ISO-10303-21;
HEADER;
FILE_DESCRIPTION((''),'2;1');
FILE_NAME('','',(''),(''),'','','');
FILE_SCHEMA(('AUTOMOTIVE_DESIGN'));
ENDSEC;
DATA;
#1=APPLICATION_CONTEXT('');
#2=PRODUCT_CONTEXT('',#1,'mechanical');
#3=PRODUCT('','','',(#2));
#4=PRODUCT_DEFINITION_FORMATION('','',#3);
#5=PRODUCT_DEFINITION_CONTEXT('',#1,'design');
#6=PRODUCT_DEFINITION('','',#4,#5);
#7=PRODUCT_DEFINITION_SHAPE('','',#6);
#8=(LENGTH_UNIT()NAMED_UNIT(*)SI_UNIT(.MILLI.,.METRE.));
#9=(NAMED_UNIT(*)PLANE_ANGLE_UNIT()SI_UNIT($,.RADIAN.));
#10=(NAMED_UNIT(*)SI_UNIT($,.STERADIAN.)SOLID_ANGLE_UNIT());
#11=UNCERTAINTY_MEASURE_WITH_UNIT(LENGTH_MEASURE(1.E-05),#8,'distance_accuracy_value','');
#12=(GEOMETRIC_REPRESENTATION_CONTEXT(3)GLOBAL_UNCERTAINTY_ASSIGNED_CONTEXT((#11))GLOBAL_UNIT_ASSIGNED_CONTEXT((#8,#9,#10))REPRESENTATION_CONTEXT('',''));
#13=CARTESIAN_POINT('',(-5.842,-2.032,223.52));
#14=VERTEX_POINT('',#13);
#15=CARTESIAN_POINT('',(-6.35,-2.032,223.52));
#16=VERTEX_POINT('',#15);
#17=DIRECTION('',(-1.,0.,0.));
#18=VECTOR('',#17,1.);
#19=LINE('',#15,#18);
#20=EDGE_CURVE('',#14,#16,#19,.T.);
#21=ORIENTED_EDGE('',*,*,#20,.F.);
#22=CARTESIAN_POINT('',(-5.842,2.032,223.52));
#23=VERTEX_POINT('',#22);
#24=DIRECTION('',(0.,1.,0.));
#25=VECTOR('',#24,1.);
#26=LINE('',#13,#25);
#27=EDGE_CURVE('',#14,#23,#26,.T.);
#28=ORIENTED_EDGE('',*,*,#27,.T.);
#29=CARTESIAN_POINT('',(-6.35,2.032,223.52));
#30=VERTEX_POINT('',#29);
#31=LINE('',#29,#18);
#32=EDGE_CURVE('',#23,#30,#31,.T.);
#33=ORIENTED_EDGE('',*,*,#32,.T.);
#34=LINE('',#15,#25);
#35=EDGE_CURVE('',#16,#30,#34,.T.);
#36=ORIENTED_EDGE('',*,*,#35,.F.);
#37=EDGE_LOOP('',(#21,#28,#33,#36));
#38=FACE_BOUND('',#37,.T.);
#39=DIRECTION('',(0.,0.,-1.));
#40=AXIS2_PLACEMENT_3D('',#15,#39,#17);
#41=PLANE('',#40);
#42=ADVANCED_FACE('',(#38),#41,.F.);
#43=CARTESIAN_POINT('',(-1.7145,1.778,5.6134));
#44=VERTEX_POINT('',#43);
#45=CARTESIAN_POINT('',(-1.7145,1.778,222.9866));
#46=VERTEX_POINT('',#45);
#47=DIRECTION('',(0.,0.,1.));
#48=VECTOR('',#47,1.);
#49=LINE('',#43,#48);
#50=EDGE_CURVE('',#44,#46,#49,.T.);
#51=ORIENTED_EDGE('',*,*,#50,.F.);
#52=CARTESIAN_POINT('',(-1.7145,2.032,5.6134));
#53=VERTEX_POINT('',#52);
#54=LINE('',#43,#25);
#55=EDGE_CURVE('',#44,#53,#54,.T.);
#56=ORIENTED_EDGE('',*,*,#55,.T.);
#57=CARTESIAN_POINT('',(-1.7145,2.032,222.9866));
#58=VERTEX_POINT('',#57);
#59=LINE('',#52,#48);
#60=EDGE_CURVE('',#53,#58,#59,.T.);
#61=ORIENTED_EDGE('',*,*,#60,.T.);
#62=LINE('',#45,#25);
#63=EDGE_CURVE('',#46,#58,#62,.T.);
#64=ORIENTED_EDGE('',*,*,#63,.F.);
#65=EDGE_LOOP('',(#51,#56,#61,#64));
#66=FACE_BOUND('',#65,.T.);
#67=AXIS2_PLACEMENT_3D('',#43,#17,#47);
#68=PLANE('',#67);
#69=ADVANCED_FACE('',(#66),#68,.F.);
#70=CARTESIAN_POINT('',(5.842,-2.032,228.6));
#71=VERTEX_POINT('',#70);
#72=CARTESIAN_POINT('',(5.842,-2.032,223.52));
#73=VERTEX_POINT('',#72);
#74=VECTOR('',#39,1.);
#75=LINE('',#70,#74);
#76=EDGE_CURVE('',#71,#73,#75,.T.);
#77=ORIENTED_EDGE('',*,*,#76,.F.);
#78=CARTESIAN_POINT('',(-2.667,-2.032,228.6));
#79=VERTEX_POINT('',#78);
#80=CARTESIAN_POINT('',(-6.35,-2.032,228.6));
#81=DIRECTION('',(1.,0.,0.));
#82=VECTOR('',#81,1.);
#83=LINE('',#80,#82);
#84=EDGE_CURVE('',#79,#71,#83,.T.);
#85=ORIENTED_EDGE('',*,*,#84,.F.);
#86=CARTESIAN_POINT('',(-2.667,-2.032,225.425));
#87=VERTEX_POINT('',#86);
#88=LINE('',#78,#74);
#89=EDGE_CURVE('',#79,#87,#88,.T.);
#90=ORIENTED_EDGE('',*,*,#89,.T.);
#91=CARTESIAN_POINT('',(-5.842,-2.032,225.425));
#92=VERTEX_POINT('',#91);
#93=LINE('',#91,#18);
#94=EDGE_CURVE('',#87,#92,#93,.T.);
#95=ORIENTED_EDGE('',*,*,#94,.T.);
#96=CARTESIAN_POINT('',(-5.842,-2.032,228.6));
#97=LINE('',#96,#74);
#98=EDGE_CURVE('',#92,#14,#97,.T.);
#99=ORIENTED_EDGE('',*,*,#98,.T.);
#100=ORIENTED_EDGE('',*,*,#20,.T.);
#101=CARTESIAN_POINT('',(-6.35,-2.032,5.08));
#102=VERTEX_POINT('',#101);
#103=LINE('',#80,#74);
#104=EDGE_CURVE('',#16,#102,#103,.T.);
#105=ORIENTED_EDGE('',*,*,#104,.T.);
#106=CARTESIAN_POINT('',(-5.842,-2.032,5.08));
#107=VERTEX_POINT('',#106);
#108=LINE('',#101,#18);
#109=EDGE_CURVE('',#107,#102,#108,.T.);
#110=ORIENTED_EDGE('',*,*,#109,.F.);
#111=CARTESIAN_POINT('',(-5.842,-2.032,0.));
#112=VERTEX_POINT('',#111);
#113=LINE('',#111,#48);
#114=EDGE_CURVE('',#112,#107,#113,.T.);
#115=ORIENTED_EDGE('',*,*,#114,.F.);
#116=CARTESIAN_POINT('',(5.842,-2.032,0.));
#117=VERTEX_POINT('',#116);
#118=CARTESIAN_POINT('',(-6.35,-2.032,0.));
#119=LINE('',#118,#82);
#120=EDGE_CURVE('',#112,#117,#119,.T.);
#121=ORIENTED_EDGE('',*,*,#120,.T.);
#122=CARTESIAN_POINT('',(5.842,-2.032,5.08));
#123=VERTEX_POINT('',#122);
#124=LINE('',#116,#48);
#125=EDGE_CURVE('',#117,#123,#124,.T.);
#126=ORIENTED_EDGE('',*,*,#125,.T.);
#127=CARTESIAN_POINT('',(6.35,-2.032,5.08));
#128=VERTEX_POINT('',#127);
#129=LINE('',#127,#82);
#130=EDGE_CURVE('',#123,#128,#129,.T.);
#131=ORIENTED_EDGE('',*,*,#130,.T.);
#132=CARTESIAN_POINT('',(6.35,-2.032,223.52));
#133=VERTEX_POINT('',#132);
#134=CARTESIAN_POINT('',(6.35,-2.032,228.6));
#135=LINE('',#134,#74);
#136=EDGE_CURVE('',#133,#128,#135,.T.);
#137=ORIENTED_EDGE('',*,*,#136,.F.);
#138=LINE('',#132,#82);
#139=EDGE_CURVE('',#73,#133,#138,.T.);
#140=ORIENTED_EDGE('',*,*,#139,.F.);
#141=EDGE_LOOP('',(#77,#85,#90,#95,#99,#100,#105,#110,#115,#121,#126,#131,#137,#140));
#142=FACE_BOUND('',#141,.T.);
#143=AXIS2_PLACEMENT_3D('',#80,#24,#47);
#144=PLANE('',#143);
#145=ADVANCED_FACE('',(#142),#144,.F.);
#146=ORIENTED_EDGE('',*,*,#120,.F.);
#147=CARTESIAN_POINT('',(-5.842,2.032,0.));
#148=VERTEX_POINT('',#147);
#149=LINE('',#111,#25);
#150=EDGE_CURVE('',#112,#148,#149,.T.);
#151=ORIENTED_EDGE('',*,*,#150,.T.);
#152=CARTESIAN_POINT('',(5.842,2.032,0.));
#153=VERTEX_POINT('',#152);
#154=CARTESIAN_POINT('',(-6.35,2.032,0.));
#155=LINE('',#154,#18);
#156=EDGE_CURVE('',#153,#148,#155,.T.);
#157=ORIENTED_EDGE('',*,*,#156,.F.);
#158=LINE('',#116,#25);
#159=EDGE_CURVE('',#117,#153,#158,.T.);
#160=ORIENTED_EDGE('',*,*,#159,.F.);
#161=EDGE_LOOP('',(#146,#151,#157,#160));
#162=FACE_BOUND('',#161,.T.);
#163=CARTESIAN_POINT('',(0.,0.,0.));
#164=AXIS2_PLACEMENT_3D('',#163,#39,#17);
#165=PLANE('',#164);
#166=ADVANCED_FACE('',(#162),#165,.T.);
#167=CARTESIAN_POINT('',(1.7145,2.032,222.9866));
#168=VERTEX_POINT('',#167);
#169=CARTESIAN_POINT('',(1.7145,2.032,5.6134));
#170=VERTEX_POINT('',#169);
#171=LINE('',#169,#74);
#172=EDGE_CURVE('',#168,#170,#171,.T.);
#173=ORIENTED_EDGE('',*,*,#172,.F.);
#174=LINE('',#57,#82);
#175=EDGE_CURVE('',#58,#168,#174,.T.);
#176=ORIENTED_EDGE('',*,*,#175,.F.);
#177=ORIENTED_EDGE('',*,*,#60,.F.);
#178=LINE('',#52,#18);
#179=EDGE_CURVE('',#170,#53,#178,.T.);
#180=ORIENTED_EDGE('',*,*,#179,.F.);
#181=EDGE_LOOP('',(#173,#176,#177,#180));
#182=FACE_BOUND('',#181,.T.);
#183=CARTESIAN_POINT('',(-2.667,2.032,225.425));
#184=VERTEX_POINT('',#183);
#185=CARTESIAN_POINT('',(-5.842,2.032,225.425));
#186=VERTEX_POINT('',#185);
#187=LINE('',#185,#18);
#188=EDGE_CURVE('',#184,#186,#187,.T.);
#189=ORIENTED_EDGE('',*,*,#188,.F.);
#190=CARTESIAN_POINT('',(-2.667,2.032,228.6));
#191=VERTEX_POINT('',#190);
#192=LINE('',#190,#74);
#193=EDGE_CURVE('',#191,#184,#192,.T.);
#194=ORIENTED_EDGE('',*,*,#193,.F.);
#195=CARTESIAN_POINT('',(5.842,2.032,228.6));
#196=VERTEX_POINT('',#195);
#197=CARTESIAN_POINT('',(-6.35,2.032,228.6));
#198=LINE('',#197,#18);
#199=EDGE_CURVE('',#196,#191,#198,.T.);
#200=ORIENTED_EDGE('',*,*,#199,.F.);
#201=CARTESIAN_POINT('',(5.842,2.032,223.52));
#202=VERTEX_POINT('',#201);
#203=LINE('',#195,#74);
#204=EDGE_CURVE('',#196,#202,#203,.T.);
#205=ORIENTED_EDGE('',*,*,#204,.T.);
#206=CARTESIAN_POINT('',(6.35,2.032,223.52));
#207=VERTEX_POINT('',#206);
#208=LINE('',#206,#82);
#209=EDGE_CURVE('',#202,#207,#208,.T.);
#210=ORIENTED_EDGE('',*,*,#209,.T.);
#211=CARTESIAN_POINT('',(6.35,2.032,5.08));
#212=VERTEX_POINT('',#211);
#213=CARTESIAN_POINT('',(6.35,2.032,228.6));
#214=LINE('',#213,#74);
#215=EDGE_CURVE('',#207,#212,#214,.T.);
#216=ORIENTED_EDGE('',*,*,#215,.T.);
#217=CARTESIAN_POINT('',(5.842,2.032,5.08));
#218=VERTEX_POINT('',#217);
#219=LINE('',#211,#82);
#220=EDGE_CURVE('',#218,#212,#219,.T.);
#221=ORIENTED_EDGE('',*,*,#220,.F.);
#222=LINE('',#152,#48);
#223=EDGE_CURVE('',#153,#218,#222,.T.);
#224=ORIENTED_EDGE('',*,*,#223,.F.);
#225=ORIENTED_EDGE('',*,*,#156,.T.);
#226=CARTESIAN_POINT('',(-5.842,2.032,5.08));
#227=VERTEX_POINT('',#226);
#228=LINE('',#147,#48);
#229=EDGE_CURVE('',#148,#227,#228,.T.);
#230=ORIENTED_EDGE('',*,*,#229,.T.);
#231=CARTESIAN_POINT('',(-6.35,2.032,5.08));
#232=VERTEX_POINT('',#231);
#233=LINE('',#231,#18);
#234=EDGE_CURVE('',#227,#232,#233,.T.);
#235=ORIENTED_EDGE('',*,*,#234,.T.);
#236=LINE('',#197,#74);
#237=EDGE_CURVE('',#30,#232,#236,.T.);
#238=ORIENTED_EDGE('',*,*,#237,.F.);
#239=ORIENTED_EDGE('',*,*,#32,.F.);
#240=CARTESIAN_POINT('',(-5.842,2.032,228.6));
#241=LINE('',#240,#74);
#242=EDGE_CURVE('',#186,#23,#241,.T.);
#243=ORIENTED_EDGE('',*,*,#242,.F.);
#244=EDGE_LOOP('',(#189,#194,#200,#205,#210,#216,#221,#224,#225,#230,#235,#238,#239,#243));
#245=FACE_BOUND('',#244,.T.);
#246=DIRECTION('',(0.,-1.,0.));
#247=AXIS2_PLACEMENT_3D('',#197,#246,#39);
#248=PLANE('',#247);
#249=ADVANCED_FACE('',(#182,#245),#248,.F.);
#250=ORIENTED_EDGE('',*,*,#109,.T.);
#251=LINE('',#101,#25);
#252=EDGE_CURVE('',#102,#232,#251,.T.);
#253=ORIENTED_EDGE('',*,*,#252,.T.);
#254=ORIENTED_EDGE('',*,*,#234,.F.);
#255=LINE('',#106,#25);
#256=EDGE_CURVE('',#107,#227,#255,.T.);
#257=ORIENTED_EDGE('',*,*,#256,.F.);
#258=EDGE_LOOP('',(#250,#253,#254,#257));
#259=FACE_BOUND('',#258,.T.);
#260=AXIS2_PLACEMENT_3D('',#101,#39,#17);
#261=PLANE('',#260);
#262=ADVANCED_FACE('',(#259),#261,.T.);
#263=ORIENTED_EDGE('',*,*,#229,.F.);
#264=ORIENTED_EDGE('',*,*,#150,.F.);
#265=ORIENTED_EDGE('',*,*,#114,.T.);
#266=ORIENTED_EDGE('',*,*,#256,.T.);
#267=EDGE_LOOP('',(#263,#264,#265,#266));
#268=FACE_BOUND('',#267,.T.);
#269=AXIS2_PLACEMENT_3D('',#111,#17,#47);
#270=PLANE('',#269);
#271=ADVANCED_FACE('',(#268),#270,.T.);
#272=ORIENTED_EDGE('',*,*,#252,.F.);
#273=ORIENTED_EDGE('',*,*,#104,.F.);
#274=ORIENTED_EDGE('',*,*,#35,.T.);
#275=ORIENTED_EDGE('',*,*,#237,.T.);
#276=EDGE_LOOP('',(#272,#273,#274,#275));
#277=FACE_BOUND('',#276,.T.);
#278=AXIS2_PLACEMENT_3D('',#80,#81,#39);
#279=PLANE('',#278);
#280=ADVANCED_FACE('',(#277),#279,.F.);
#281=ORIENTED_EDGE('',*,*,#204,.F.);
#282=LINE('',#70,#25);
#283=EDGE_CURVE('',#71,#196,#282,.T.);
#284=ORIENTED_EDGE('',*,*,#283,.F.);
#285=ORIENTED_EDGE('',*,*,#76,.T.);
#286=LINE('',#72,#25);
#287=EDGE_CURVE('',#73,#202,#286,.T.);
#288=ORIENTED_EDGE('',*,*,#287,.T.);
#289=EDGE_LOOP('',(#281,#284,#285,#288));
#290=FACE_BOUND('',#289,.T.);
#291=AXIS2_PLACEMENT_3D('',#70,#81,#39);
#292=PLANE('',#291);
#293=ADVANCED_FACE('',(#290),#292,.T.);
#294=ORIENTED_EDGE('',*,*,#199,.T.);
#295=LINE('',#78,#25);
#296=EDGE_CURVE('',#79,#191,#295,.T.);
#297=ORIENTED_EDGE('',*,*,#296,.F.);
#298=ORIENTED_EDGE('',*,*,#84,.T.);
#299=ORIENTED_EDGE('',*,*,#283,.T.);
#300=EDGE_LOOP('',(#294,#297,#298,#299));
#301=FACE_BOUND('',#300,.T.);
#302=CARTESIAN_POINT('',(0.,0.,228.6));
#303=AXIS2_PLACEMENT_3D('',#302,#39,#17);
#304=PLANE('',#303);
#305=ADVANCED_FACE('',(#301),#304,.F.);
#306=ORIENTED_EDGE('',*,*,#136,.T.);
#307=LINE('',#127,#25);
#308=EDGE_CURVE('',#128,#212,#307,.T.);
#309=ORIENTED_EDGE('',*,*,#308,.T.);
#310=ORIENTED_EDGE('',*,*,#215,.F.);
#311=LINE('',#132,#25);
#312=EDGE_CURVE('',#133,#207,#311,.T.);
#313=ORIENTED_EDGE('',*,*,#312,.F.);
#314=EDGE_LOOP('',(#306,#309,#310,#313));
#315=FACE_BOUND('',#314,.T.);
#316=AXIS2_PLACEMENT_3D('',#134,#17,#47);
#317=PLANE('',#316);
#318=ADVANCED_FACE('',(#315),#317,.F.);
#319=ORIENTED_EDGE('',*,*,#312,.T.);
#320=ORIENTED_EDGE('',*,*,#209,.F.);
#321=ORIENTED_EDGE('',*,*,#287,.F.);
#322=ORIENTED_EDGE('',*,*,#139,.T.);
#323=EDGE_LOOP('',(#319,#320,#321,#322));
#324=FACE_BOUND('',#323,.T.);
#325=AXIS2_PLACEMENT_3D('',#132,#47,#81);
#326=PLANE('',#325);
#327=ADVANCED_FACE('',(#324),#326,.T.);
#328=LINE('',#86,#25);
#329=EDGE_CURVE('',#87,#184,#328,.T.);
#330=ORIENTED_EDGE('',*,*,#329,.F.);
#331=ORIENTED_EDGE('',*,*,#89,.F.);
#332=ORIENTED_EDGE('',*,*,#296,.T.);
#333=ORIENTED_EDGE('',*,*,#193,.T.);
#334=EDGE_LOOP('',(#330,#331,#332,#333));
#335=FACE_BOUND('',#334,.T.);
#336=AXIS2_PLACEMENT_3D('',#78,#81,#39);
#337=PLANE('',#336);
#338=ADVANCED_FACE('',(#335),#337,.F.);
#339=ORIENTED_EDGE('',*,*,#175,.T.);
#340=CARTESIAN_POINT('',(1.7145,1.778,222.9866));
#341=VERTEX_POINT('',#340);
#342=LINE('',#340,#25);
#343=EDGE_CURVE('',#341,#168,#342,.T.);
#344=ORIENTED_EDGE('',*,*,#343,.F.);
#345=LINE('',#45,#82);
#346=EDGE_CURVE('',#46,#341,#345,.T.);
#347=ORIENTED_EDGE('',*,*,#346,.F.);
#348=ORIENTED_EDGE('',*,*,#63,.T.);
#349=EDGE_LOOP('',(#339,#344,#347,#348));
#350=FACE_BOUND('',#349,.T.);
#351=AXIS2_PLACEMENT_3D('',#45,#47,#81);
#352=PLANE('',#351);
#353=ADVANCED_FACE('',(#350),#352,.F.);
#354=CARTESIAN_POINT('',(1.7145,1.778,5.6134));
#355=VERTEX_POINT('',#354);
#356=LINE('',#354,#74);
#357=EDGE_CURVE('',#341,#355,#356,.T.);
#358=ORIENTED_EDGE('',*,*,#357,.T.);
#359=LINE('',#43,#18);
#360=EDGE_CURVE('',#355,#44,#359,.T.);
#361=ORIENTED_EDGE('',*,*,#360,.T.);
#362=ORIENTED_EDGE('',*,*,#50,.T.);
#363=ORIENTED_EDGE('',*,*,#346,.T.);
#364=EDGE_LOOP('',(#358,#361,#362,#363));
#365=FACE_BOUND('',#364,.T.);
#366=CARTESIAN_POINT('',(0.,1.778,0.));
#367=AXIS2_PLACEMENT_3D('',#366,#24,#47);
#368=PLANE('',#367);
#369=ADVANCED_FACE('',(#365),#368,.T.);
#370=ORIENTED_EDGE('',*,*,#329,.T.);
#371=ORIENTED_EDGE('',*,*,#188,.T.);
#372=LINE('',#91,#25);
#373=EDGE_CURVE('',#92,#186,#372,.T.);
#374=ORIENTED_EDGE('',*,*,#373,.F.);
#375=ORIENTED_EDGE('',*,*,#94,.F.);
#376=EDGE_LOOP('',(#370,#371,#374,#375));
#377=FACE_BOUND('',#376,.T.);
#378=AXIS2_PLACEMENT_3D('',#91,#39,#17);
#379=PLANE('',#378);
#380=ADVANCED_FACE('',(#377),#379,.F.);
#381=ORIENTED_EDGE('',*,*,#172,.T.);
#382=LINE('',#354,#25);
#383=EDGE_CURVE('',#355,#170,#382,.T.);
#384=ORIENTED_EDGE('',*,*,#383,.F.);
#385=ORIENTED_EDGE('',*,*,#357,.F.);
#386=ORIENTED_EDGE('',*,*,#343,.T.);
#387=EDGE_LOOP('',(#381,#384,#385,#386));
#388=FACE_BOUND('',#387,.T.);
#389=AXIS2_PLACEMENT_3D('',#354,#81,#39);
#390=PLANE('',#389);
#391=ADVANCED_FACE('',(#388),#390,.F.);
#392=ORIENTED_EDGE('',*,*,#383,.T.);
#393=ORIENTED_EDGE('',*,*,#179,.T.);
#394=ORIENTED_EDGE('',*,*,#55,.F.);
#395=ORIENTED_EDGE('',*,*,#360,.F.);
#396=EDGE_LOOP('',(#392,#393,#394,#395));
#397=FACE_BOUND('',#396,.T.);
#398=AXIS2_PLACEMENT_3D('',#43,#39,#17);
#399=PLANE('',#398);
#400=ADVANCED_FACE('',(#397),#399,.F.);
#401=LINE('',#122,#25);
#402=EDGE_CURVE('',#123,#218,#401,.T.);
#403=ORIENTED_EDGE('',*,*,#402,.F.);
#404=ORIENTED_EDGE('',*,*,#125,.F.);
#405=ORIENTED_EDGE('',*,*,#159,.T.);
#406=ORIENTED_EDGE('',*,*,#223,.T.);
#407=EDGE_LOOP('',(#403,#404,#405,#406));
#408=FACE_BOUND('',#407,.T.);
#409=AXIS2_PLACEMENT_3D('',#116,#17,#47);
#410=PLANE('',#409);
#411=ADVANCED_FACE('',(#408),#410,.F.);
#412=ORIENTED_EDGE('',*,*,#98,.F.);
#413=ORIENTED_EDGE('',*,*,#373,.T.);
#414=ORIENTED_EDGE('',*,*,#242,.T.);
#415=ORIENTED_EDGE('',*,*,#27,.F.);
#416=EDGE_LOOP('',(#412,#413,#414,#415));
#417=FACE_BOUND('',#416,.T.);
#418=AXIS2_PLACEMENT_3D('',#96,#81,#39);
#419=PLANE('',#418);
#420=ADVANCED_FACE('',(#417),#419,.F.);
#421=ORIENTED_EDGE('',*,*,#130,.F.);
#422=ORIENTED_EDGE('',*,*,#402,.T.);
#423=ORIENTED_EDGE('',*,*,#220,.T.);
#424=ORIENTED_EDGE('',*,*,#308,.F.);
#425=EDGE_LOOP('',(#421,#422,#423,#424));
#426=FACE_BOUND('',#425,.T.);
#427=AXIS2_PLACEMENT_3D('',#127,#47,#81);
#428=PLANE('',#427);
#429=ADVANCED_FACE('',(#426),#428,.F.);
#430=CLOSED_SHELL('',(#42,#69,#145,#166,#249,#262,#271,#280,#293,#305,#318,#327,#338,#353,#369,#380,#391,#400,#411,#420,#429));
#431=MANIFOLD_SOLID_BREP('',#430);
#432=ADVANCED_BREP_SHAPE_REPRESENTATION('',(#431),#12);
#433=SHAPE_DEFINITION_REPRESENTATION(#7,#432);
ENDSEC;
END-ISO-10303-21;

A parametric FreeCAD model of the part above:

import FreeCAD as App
import Part
import Sketcher
from FreeCAD import Vector
Q = App.Units.Quantity


def add_polygon(sketch, points):
    """Adds a closed chain of lines whose ends are joined by coincident constraints."""
    first, n = sketch.GeometryCount, len(points)
    for a, b in zip(points, points[1:] + points[:1]):
        sketch.addGeometry(Part.LineSegment(App.Vector(*a, 0), App.Vector(*b, 0)), False)
    for i in range(n):
        sketch.addConstraint(Sketcher.Constraint("Coincident", first + i, 2, first + (i + 1) % n, 1))

doc = App.newDocument("Part")
body = doc.addObject("PartDesign::Body", "Body")

# Sketch on XY plane
sketch1 = doc.addObject("Sketcher::SketchObject", "Sketch")
body.addObject(sketch1)
sketch1.AttachmentSupport = (doc.XY_Plane, [""])
sketch1.MapMode = "FlatFace"
add_polygon(sketch1, [(-6.35, 2.032), (-6.35, -2.032), (6.35, -2.032), (6.35, 2.032)])  # lines 0-3
sketch1.addConstraint([
    Sketcher.Constraint("Vertical", 0),
    Sketcher.Constraint("Horizontal", 1),
    Sketcher.Constraint("Vertical", 2),
    Sketcher.Constraint("Horizontal", 3),
    Sketcher.Constraint("Symmetric", 0, 2, 2, 2, -1, 1),
    Sketcher.Constraint("DistanceX", 1, 1, 1, 2, Q("0.5 in")),
    Sketcher.Constraint("DistanceY", 0, 2, 0, 1, Q("0.16 in")),
])
pad1 = doc.addObject("PartDesign::Pad", "Pad")
body.addObject(pad1)
pad1.Profile = sketch1
pad1.Length = Q("9 in")

# Sketch on XZ plane
sketch2 = doc.addObject("Sketcher::SketchObject", "Sketch001")
body.addObject(sketch2)
sketch2.AttachmentSupport = (doc.XZ_Plane, [""])
sketch2.MapMode = "FlatFace"
sketch2.AttachmentOffset = App.Placement(Vector(0, 0, -0.08 * 25.4), App.Rotation())
add_polygon(sketch2, [(-1.7145, 5.6134), (-1.7145, 222.9866), (1.7145, 222.9866), (1.7145, 5.6134)])  # lines 0-3
sketch2.addConstraint([
    Sketcher.Constraint("Vertical", 0),
    Sketcher.Constraint("Horizontal", 1),
    Sketcher.Constraint("Vertical", 2),
    Sketcher.Constraint("Horizontal", 3),
    Sketcher.Constraint("DistanceX", 1, 1, 1, 2, Q("0.135 in")),
    Sketcher.Constraint("DistanceY", 0, 1, 0, 2, Q("8.558 in")),
    Sketcher.Constraint("DistanceY", -1, 1, 0, 2, Q("8.779 in")),
    Sketcher.Constraint("DistanceX", 0, 2, -1, 1, Q("0.0675 in")),
])
pocket1 = doc.addObject("PartDesign::Pocket", "Pocket")
body.addObject(pocket1)
pocket1.Profile = sketch2
pocket1.Length = Q("0.01 in")
pocket1.Reversed = True

# Sketch on XZ plane
sketch3 = doc.addObject("Sketcher::SketchObject", "Sketch002")
body.addObject(sketch3)
sketch3.AttachmentSupport = (doc.XZ_Plane, [""])
sketch3.MapMode = "FlatFace"
sketch3.AttachmentOffset = App.Placement(Vector(0, 0, -0.08 * 25.4), App.Rotation())
add_polygon(sketch3, [(-6.35, 223.52), (-6.35, 228.6), (-5.842, 228.6), (-5.842, 223.52)])  # lines 0-3
sketch3.addConstraint([
    Sketcher.Constraint("Vertical", 0),
    Sketcher.Constraint("Horizontal", 1),
    Sketcher.Constraint("Vertical", 2),
    Sketcher.Constraint("Horizontal", 3),
    Sketcher.Constraint("DistanceY", 0, 1, 0, 2, Q("0.2 in")),
    Sketcher.Constraint("DistanceY", -1, 1, 0, 2, Q("9 in")),
    Sketcher.Constraint("DistanceX", 1, 1, 1, 2, Q("0.02 in")),
    Sketcher.Constraint("DistanceX", 0, 2, -1, 1, Q("0.25 in")),
])
pocket2 = doc.addObject("PartDesign::Pocket", "Pocket001")
body.addObject(pocket2)
pocket2.Profile = sketch3
pocket2.Type = "ThroughAll"
pocket2.Reversed = True
doc.recompute()

datumplane = doc.addObject("PartDesign::Plane", "DatumPlane")
body.addObject(datumplane)
datumplane.AttachmentSupport = (doc.XY_Plane, [""])
datumplane.MapMode = "FlatFace"
datumplane.AttachmentOffset = App.Placement(Vector(0, 0, 4.5 * 25.4), App.Rotation())
mirrored = doc.addObject("PartDesign::Mirrored", "Mirrored")
body.addObject(mirrored)
mirrored.Originals = [pocket2]
mirrored.MirrorPlane = (datumplane, [""])
body.Tip = mirrored
doc.recompute()

mirrored2 = doc.addObject("PartDesign::Mirrored", "Mirrored001")
body.addObject(mirrored2)
mirrored2.Originals = [pocket2]
mirrored2.MirrorPlane = (doc.YZ_Plane, [""])
body.Tip = mirrored2

# Sketch on XZ plane
sketch4 = doc.addObject("Sketcher::SketchObject", "Sketch003")
body.addObject(sketch4)
sketch4.AttachmentSupport = (doc.XZ_Plane, [""])
sketch4.MapMode = "FlatFace"
sketch4.AttachmentOffset = App.Placement(Vector(0, 0, -0.08 * 25.4), App.Rotation())
add_polygon(sketch4, [(6.35, 5.08), (6.35, 0), (5.842, 0), (5.842, 5.08)])  # lines 0-3
sketch4.addConstraint([
    Sketcher.Constraint("Vertical", 0),
    Sketcher.Constraint("Horizontal", 1),
    Sketcher.Constraint("Vertical", 2),
    Sketcher.Constraint("Horizontal", 3),
    Sketcher.Constraint("PointOnObject", 0, 2, -1),
    Sketcher.Constraint("DistanceY", 0, 2, 0, 1, Q("0.2 in")),
    Sketcher.Constraint("DistanceX", 1, 2, 1, 1, Q("0.02 in")),
    Sketcher.Constraint("DistanceX", -1, 1, 0, 2, Q("0.25 in")),
])
pocket3 = doc.addObject("PartDesign::Pocket", "Pocket002")
body.addObject(pocket3)
pocket3.Profile = sketch4
pocket3.Type = "ThroughAll"
pocket3.Reversed = True

# Sketch on XZ plane
sketch5 = doc.addObject("Sketcher::SketchObject", "Sketch004")
body.addObject(sketch5)
sketch5.AttachmentSupport = (doc.XZ_Plane, [""])
sketch5.MapMode = "FlatFace"
sketch5.AttachmentOffset = App.Placement(Vector(0, 0, -0.08 * 25.4), App.Rotation())
add_polygon(sketch5, [(-5.842, 225.425), (-5.842, 228.6), (-2.667, 228.6), (-2.667, 225.425)])  # lines 0-3
sketch5.addConstraint([
    Sketcher.Constraint("Vertical", 0),
    Sketcher.Constraint("Horizontal", 1),
    Sketcher.Constraint("Vertical", 2),
    Sketcher.Constraint("Horizontal", 3),
    Sketcher.Constraint("Equal", 3, 0),
    Sketcher.Constraint("DistanceY", -1, 1, 0, 2, Q("9 in")),
    Sketcher.Constraint("DistanceX", 1, 1, 1, 2, Q("0.125 in")),
    Sketcher.Constraint("DistanceX", 0, 2, -1, 1, Q("0.23 in")),
])
pocket4 = doc.addObject("PartDesign::Pocket", "Pocket003")
body.addObject(pocket4)
pocket4.Profile = sketch5
pocket4.Type = "ThroughAll"
pocket4.Reversed = True

doc.recompute()
